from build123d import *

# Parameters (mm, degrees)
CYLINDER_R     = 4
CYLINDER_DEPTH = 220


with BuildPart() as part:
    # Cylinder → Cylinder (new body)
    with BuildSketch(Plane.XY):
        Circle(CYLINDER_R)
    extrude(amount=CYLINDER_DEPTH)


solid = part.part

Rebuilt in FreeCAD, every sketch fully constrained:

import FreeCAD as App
import Part
import Sketcher

V = App.Vector

doc = App.newDocument("Part")
body = doc.addObject("PartDesign::Body", "Body")

# Sketch on XY plane
sketch1 = body.newObject("Sketcher::SketchObject", "Sketch")
sketch1.AttachmentSupport = (doc.getObject("XY_Plane"), [""])
sketch1.MapMode = "FlatFace"
sketch1.addGeometry(Part.Circle(V(0, 0, 0), V(0, 0, 1), 4), False)
sketch1.addConstraint([
    Sketcher.Constraint("Coincident", 0, 3, -1, 1),
    Sketcher.Constraint("Diameter", 0, 8.0),
])
pad1 = body.newObject("PartDesign::Pad", "Pad")
pad1.Profile = sketch1
pad1.Length = 220

doc.recompute()
